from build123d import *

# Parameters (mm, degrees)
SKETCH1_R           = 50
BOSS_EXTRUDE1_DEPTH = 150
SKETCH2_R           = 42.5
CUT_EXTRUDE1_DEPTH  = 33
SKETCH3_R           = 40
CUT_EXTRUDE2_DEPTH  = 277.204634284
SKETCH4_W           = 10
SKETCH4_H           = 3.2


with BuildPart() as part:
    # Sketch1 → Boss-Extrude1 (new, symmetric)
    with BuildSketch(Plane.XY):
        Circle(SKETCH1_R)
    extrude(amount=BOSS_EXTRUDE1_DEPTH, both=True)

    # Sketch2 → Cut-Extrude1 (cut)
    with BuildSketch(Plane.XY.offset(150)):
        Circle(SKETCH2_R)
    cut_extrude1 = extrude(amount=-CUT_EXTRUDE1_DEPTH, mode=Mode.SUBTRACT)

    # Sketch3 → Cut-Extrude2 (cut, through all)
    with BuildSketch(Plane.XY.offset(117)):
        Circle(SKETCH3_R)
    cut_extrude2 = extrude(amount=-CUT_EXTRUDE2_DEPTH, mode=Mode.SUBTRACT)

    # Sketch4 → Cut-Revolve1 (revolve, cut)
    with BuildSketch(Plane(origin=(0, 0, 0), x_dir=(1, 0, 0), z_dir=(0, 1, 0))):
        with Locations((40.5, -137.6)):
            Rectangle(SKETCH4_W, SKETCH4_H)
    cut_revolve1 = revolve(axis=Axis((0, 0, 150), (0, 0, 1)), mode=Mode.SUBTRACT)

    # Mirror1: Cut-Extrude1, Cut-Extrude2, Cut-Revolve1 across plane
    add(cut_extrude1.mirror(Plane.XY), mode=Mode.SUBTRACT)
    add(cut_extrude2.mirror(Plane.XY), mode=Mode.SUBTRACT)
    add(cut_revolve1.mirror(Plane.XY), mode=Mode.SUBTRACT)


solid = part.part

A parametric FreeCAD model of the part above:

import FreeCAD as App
import Part
import Sketcher

V = App.Vector
Q = App.Units.Quantity

doc = App.newDocument("Part")
body = doc.addObject("PartDesign::Body", "Body")

# Sketch on XY plane
sketch1 = body.newObject("Sketcher::SketchObject", "Sketch")
sketch1.AttachmentSupport = (doc.getObject("XY_Plane"), [""])
sketch1.MapMode = "FlatFace"
sketch1.addGeometry(Part.Circle(V(0, 0, 0), V(0, 0, 1), 50), False)
sketch1.addConstraint(Sketcher.Constraint("Coincident", 0, 3, -1, 1))
sketch1.addConstraint(Sketcher.Constraint("Diameter", 0, Q("100 mm")))
pad1 = body.newObject("PartDesign::Pad", "Pad")
pad1.Profile = sketch1
pad1.Length = 300
pad1.Midplane = True

# Sketch on XY plane
sketch2 = body.newObject("Sketcher::SketchObject", "Sketch001")
sketch2.AttachmentSupport = (doc.getObject("XY_Plane"), [""])
sketch2.MapMode = "FlatFace"
sketch2.AttachmentOffset = App.Placement(V(0, 0, 150), App.Rotation())
sketch2.addGeometry(Part.Circle(V(0, 0, 0), V(0, 0, 1), 42), False)
sketch2.addConstraint(Sketcher.Constraint("Coincident", 0, 3, -1, 1))
sketch2.addConstraint(Sketcher.Constraint("Diameter", 0, Q("85 mm")))
pocket1 = body.newObject("PartDesign::Pocket", "Pocket")
pocket1.Profile = sketch2
pocket1.Length = 33

# Sketch on XY plane
sketch3 = body.newObject("Sketcher::SketchObject", "Sketch002")
sketch3.AttachmentSupport = (doc.getObject("XY_Plane"), [""])
sketch3.MapMode = "FlatFace"
sketch3.AttachmentOffset = App.Placement(V(0, 0, 117), App.Rotation())
sketch3.addGeometry(Part.Circle(V(0, 0, 0), V(0, 0, 1), 40), False)
sketch3.addConstraint(Sketcher.Constraint("Coincident", 0, 3, -1, 1))
sketch3.addConstraint(Sketcher.Constraint("Diameter", 0, Q("80 mm")))
pocket2 = body.newObject("PartDesign::Pocket", "Pocket001")
pocket2.Profile = sketch3
pocket2.Type = "ThroughAll"

# Sketch on XZ plane
sketch4 = body.newObject("Sketcher::SketchObject", "Sketch003")
sketch4.AttachmentSupport = (doc.getObject("XZ_Plane"), [""])
sketch4.MapMode = "FlatFace"
sketch4.addGeometry(Part.LineSegment(V(35.5, 136, 0), V(35.5, 139.2, 0)), False)
sketch4.addGeometry(Part.LineSegment(V(35.5, 139.2, 0), V(45.5, 139.2, 0)), False)
sketch4.addGeometry(Part.LineSegment(V(45.5, 139.2, 0), V(45.5, 136, 0)), False)
sketch4.addGeometry(Part.LineSegment(V(45.5, 136, 0), V(35.5, 136, 0)), False)
sketch4.addConstraint(Sketcher.Constraint("Coincident", 0, 2, 1, 1))
sketch4.addConstraint(Sketcher.Constraint("Coincident", 1, 2, 2, 1))
sketch4.addConstraint(Sketcher.Constraint("Coincident", 2, 2, 3, 1))
sketch4.addConstraint(Sketcher.Constraint("Coincident", 3, 2, 0, 1))
sketch4.addConstraint(Sketcher.Constraint("Vertical", 0))
sketch4.addConstraint(Sketcher.Constraint("Horizontal", 1))
sketch4.addConstraint(Sketcher.Constraint("Vertical", 2))
sketch4.addConstraint(Sketcher.Constraint("Horizontal", 3))
sketch4.addConstraint(Sketcher.Constraint("DistanceX", 1, 1, 1, 2, Q("10 mm")))
sketch4.addConstraint(Sketcher.Constraint("DistanceY", 0, 1, 0, 2, Q("3.2 mm")))
sketch4.addConstraint(Sketcher.Constraint("DistanceY", -1, 1, 2, 2, Q("136 mm")))
sketch4.addConstraint(Sketcher.Constraint("DistanceX", -1, 1, 0, 2, Q("35.5 mm")))
groove = body.newObject("PartDesign::Groove", "Groove")
groove.Profile = sketch4
groove.ReferenceAxis = (sketch4, ["V_Axis"])
groove.Angle = 360
doc.recompute()

mirrored = body.newObject("PartDesign::Mirrored", "Mirrored")
mirrored.Originals = [pocket1, pocket2, groove]
mirrored.MirrorPlane = (doc.getObject("XY_Plane"), [""])
body.Tip = mirrored

doc.recompute()
